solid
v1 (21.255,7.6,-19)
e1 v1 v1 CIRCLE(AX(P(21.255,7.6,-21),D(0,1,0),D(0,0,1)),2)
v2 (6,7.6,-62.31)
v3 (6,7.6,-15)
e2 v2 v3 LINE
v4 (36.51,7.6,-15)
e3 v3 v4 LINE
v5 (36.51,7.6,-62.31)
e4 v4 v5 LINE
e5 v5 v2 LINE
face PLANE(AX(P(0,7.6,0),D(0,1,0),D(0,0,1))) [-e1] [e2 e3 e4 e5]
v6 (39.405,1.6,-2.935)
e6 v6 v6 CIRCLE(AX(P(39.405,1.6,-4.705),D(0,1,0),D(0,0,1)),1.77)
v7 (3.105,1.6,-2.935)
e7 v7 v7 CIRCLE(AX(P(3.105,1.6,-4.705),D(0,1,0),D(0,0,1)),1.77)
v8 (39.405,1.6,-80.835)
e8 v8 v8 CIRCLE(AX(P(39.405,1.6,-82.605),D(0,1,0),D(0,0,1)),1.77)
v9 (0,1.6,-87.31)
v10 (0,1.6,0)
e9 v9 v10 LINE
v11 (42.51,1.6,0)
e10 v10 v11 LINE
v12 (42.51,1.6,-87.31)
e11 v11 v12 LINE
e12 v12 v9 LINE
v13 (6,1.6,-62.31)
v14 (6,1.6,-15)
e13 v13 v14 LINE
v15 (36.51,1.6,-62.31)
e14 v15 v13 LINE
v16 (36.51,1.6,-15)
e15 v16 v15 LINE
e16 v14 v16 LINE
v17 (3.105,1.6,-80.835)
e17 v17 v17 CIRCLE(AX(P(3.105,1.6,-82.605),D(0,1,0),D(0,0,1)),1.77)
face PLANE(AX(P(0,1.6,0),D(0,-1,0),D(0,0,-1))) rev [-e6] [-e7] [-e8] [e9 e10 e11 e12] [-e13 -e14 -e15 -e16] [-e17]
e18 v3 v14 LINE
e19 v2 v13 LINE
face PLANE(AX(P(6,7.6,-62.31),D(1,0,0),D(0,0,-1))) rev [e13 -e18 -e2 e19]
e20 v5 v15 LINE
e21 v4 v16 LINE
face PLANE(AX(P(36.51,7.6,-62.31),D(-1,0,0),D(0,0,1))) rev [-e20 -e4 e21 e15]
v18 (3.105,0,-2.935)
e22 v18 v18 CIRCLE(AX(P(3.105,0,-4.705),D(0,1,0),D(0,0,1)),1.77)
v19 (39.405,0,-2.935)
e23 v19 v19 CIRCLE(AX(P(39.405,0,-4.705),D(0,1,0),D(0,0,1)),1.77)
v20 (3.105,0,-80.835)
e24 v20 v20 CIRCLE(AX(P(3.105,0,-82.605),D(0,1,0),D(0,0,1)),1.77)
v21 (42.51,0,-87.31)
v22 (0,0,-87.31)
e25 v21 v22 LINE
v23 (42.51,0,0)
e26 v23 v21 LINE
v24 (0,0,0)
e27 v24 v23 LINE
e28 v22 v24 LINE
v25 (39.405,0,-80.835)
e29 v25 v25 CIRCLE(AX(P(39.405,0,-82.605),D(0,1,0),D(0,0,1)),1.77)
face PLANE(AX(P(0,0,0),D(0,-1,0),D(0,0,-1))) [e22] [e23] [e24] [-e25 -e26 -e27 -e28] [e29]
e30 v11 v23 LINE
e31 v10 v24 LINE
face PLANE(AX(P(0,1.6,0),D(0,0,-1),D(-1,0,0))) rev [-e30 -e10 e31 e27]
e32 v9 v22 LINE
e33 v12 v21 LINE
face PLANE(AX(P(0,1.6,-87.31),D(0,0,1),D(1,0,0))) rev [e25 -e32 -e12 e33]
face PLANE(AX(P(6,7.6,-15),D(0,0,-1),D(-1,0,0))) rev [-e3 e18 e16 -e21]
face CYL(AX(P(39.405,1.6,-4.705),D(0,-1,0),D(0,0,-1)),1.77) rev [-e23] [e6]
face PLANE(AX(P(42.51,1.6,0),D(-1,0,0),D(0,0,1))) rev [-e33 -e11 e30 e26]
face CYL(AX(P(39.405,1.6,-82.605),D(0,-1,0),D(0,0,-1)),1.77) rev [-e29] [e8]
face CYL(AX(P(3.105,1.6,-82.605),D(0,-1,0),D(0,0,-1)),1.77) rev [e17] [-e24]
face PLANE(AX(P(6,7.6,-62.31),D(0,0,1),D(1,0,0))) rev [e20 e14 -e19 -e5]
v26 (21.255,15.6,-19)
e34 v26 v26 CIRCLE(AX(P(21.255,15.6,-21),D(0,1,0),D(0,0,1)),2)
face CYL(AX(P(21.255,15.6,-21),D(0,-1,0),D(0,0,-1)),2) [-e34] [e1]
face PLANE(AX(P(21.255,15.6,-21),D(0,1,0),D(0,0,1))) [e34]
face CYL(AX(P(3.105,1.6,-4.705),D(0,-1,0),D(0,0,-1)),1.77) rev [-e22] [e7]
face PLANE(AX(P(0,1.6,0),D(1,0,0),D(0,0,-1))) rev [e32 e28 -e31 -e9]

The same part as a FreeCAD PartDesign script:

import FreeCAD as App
import Part
import Sketcher
from FreeCAD import Vector


def add_polygon(sketch, points):
    """Adds a closed chain of lines whose ends are joined by coincident constraints."""
    first, n = sketch.GeometryCount, len(points)
    for a, b in zip(points, points[1:] + points[:1]):
        sketch.addGeometry(Part.LineSegment(App.Vector(*a, 0), App.Vector(*b, 0)), False)
    for i in range(n):
        sketch.addConstraint(Sketcher.Constraint("Coincident", first + i, 2, first + (i + 1) % n, 1))

doc = App.newDocument("Part")
params = doc.addObject("Spreadsheet::Sheet", "Params")
for row, (alias, value) in enumerate([
    ("sketch1_diameter", "3.54 mm"),
    ("sketch1_width", "42.51 mm"),
    ("sketch1_height", "87.31 mm"),
    ("pad1_length", "1.6 mm"),
    ("sketch2_width", "30.51 mm"),
    ("sketch2_height", "47.31 mm"),
    ("pad2_length", "6 mm"),
    ("sketch3_diameter", "4 mm"),
    ("pad3_length", "8 mm"),
], start=1):
    params.set(f"A{row}", alias)
    params.set(f"B{row}", "=" + value)
    params.setAlias(f"B{row}", alias)

body = doc.addObject("PartDesign::Body", "Body")

# Sketch on XZ plane
sketch1 = body.newObject("Sketcher::SketchObject", "Sketch")
sketch1.AttachmentSupport = (doc.getObject("XZ_Plane"), [""])
sketch1.MapMode = "FlatFace"
add_polygon(sketch1, [(0, -87.3), (0, 0), (42.5, 0), (42.5, -87.3)])  # lines 0-3
sketch1.addGeometry(Part.Circle(Vector(3.1, -4.7, 0), Vector(0, 0, 1), 1.8), False)  # 4
sketch1.addGeometry(Part.Circle(Vector(39.4, -4.7, 0), Vector(0, 0, 1), 1.8), False)  # 5
sketch1.addGeometry(Part.Circle(Vector(3.1, -82.6, 0), Vector(0, 0, 1), 1.8), False)  # 6
sketch1.addGeometry(Part.Circle(Vector(39.4, -82.6, 0), Vector(0, 0, 1), 1.8), False)  # 7
sketch1.addConstraint(Sketcher.Constraint("Vertical", 0))
sketch1.addConstraint(Sketcher.Constraint("Horizontal", 1))
sketch1.addConstraint(Sketcher.Constraint("Vertical", 2))
sketch1.addConstraint(Sketcher.Constraint("Horizontal", 3))
sketch1.addConstraint(Sketcher.Constraint("Coincident", 0, 2, -1, 1))
sketch1.addConstraint(Sketcher.Constraint("Equal", 4, 5))
sketch1.addConstraint(Sketcher.Constraint("Equal", 5, 6))
sketch1.addConstraint(Sketcher.Constraint("Equal", 6, 7))
sketch1.addConstraint(Sketcher.Constraint("Horizontal", 4, 3, 5, 3))
sketch1.addConstraint(Sketcher.Constraint("Horizontal", 6, 3, 7, 3))
sketch1.addConstraint(Sketcher.Constraint("Vertical", 4, 3, 6, 3))
sketch1.addConstraint(Sketcher.Constraint("Vertical", 5, 3, 7, 3))
sketch1.addConstraint(Sketcher.Constraint("Diameter", 4, 3.54))
sketch1.addConstraint(Sketcher.Constraint("DistanceX", 1, 1, 1, 2, 42.51))
sketch1.addConstraint(Sketcher.Constraint("DistanceY", 0, 1, 0, 2, 87.31))
sketch1.addConstraint(Sketcher.Constraint("DistanceX", 4, 3, 5, 3, 36.3))
sketch1.addConstraint(Sketcher.Constraint("DistanceY", 6, 3, 4, 3, 77.9))
sketch1.addConstraint(Sketcher.Constraint("DistanceX", -1, 1, 4, 3, 3.105))
sketch1.addConstraint(Sketcher.Constraint("DistanceY", 4, 3, -1, 1, 4.705))
sketch1.setExpression("Constraints[16]", "Params.sketch1_diameter")
sketch1.setExpression("Constraints[17]", "Params.sketch1_width")
sketch1.setExpression("Constraints[18]", "Params.sketch1_height")
pad1 = body.newObject("PartDesign::Pad", "Pad")
pad1.Profile = sketch1
pad1.setExpression("Length", "Params.pad1_length")
pad1.Reversed = True

# Sketch on XZ plane
sketch2 = body.newObject("Sketcher::SketchObject", "Sketch001")
sketch2.AttachmentSupport = (doc.getObject("XZ_Plane"), [""])
sketch2.MapMode = "FlatFace"
sketch2.AttachmentOffset = App.Placement(Vector(0, 0, -1.6), App.Rotation())
add_polygon(sketch2, [(6, -62), (6, -15), (37, -15), (37, -62)])  # lines 0-3
sketch2.addConstraint(Sketcher.Constraint("Vertical", 0))
sketch2.addConstraint(Sketcher.Constraint("Horizontal", 1))
sketch2.addConstraint(Sketcher.Constraint("Vertical", 2))
sketch2.addConstraint(Sketcher.Constraint("Horizontal", 3))
sketch2.addConstraint(Sketcher.Constraint("DistanceX", -1, 1, 0, 2, 6.0))
sketch2.addConstraint(Sketcher.Constraint("DistanceY", 0, 2, -1, 1, 15.0))
sketch2.addConstraint(Sketcher.Constraint("DistanceX", 1, 1, 1, 2, 30.51))
sketch2.addConstraint(Sketcher.Constraint("DistanceY", 0, 1, 0, 2, 47.31))
sketch2.setExpression("Constraints[10]", "Params.sketch2_width")
sketch2.setExpression("Constraints[11]", "Params.sketch2_height")
pad2 = body.newObject("PartDesign::Pad", "Pad001")
pad2.Profile = sketch2
pad2.setExpression("Length", "Params.pad2_length")
pad2.Reversed = True

# Sketch on XZ plane
sketch3 = body.newObject("Sketcher::SketchObject", "Sketch002")
sketch3.AttachmentSupport = (doc.getObject("XZ_Plane"), [""])
sketch3.MapMode = "FlatFace"
sketch3.AttachmentOffset = App.Placement(Vector(0, 0, -7.6), App.Rotation())
sketch3.addGeometry(Part.Circle(Vector(21.3, -21, 0), Vector(0, 0, 1), 2), False)
sketch3.addConstraint(Sketcher.Constraint("Diameter", 0, 4.0))
sketch3.addConstraint(Sketcher.Constraint("DistanceY", 0, 3, -1, 1, 21.0))
sketch3.addConstraint(Sketcher.Constraint("DistanceX", -1, 1, 0, 3, 21.255))
sketch3.setExpression("Constraints[0]", "Params.sketch3_diameter")
pad3 = body.newObject("PartDesign::Pad", "Pad002")
pad3.Profile = sketch3
pad3.setExpression("Length", "Params.pad3_length")
pad3.Reversed = True

doc.recompute()
